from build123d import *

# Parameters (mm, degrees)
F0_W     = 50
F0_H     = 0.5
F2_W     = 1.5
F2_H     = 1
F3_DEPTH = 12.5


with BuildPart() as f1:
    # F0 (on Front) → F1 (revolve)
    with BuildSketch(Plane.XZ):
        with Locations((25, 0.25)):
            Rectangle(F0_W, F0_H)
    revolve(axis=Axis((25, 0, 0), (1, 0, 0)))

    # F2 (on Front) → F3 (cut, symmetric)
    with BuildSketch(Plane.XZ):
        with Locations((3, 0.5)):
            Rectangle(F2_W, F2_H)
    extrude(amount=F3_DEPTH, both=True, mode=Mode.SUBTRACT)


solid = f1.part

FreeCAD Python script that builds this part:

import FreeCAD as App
import Part
import Sketcher
from FreeCAD import Vector
Q = App.Units.Quantity


def add_polygon(sketch, points):
    """Adds a closed chain of lines whose ends are joined by coincident constraints."""
    first, n = sketch.GeometryCount, len(points)
    for a, b in zip(points, points[1:] + points[:1]):
        sketch.addGeometry(Part.LineSegment(App.Vector(*a, 0), App.Vector(*b, 0)), False)
    for i in range(n):
        sketch.addConstraint(Sketcher.Constraint("Coincident", first + i, 2, first + (i + 1) % n, 1))

doc = App.newDocument("Part")
body = doc.addObject("PartDesign::Body", "Body")

sketch1 = body.newObject("Sketcher::SketchObject", "Sketch")
sketch1.AttachmentSupport = (doc.getObject("XZ_Plane"), [""])
sketch1.MapMode = "FlatFace"
add_polygon(sketch1, [(0, 0.5), (0, 0), (50, 0), (50, 0.5)])
sketch1.addConstraint([
    Sketcher.Constraint("Vertical", 0),
    Sketcher.Constraint("Horizontal", 1),
    Sketcher.Constraint("Vertical", 2),
    Sketcher.Constraint("Horizontal", 3),
    Sketcher.Constraint("Coincident", 0, 2, -1, 1),
    Sketcher.Constraint("DistanceX", 1, 1, 1, 2, Q("50 mm")),
    Sketcher.Constraint("DistanceY", 0, 2, 0, 1, Q("0.5 mm")),
])
revolution = body.newObject("PartDesign::Revolution", "Revolution")
revolution.Profile = sketch1
revolution.ReferenceAxis = (sketch1, ["H_Axis"])
revolution.Angle = 360

sketch2 = body.newObject("Sketcher::SketchObject", "Sketch001")
sketch2.AttachmentSupport = (doc.getObject("XZ_Plane"), [""])
sketch2.MapMode = "FlatFace"
add_polygon(sketch2, [(2.2, 1), (2.2, 0), (3.8, 0), (3.8, 1)])
sketch2.addConstraint([
    Sketcher.Constraint("Vertical", 0),
    Sketcher.Constraint("Horizontal", 1),
    Sketcher.Constraint("Vertical", 2),
    Sketcher.Constraint("Horizontal", 3),
    Sketcher.Constraint("PointOnObject", 0, 2, -1),
    Sketcher.Constraint("DistanceY", 0, 2, 0, 1, Q("1 mm")),
    Sketcher.Constraint("DistanceX", 1, 1, 1, 2, Q("1.5 mm")),
    Sketcher.Constraint("DistanceX", -1, 1, 0, 2, Q("2.25 mm")),
])
pocket1 = body.newObject("PartDesign::Pocket", "Pocket")
pocket1.Profile = sketch2
pocket1.Length = 25
pocket1.Midplane = True

doc.recompute()
